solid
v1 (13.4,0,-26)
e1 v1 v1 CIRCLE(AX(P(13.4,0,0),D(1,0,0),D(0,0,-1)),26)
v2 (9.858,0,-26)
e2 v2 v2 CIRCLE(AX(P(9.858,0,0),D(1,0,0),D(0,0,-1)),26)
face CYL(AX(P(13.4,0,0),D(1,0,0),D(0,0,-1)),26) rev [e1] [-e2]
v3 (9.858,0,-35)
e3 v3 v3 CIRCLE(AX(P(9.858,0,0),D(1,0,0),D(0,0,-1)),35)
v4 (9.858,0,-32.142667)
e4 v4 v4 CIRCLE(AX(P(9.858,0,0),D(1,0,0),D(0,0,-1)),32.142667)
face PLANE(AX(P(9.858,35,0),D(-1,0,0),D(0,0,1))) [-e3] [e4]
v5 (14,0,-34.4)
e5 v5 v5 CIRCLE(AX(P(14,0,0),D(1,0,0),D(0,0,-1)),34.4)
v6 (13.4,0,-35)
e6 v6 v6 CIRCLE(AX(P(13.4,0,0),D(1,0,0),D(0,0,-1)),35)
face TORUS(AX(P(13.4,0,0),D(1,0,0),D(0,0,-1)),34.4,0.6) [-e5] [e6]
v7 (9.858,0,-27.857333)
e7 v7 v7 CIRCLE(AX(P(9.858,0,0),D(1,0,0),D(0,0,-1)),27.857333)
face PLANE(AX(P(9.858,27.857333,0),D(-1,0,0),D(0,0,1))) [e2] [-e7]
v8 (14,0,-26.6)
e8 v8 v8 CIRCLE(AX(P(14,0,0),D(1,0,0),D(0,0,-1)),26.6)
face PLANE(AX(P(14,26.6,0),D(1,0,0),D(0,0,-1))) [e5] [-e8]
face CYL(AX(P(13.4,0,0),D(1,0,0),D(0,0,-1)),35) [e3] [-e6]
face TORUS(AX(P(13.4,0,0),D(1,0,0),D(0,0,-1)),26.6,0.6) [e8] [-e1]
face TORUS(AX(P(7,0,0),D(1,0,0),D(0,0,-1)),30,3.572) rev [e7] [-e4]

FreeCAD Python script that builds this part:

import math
import FreeCAD as App
import Part
import Sketcher
from FreeCAD import Vector
Q = App.Units.Quantity

doc = App.newDocument("Part")
body = doc.addObject("PartDesign::Body", "Body")

# Sketch on XY plane
sketch1 = doc.addObject("Sketcher::SketchObject", "Sketch")
body.addObject(sketch1)
sketch1.AttachmentSupport = (doc.XY_Plane, [""])
sketch1.MapMode = "FlatFace"
sketch1.addGeometry([
    Part.LineSegment(Vector(9.9, 26, 0), Vector(13.4, 26, 0)),  # 0
    Part.ArcOfCircle(Part.Circle(Vector(13.4, 26.6, 0), Vector(0, 0, 1), 0.6), math.radians(-90), math.radians(0)),  # 1
    Part.LineSegment(Vector(14, 26.6, 0), Vector(14, 34.4, 0)),  # 2
    Part.ArcOfCircle(Part.Circle(Vector(13.4, 34.4, 0), Vector(0, 0, 1), 0.6), math.radians(0), math.radians(90)),  # 3
    Part.LineSegment(Vector(13.4, 35, 0), Vector(9.9, 35, 0)),  # 4
    Part.LineSegment(Vector(9.9, 35, 0), Vector(9.9, 32.1, 0)),  # 5
    Part.ArcOfCircle(Part.Circle(Vector(7, 30, 0), Vector(0, 0, 1), 3.6), math.radians(-37), math.radians(37)),  # 6
    Part.LineSegment(Vector(9.9, 27.9, 0), Vector(9.9, 26, 0)),  # 7
], False)
sketch1.addConstraint([
    Sketcher.Constraint("Tangent", 0, 2, 1, 1),
    Sketcher.Constraint("Tangent", 1, 2, 2, 1),
    Sketcher.Constraint("Tangent", 2, 2, 3, 1),
    Sketcher.Constraint("Tangent", 3, 2, 4, 1),
    Sketcher.Constraint("Coincident", 4, 2, 5, 1),
    Sketcher.Constraint("Coincident", 5, 2, 6, 2),
    Sketcher.Constraint("Coincident", 6, 1, 7, 1),
    Sketcher.Constraint("Coincident", 7, 2, 0, 1),
    Sketcher.Constraint("Horizontal", 0),
    Sketcher.Constraint("Vertical", 2),
    Sketcher.Constraint("Horizontal", 4),
    Sketcher.Constraint("Vertical", 5),
    Sketcher.Constraint("Vertical", 7),
    Sketcher.Constraint("Equal", 1, 3),
    Sketcher.Constraint("Vertical", 5, 2, 6, 1),
    Sketcher.Constraint("Radius", 1, Q("0.6 mm")),
    Sketcher.Constraint("DistanceY", 2, 1, 2, 2, Q("7.8 mm")),
    Sketcher.Constraint("DistanceX", -1, 1, 6, 3, Q("7 mm")),
    Sketcher.Constraint("DistanceY", -1, 1, 6, 3, Q("30 mm")),
    Sketcher.Constraint("DistanceY", -1, 1, 0, 2, Q("26 mm")),
    Sketcher.Constraint("DistanceX", -1, 1, 1, 2, Q("14 mm")),
    Sketcher.Constraint("Radius", 6, Q("3.572 mm")),
    Sketcher.Constraint("DistanceX", 0, 1, 0, 2, Q("3.542 mm")),
])
revolution = doc.addObject("PartDesign::Revolution", "Revolution")
body.addObject(revolution)
revolution.Profile = sketch1
revolution.ReferenceAxis = (sketch1, ["H_Axis"])
revolution.Angle = 360

doc.recompute()
